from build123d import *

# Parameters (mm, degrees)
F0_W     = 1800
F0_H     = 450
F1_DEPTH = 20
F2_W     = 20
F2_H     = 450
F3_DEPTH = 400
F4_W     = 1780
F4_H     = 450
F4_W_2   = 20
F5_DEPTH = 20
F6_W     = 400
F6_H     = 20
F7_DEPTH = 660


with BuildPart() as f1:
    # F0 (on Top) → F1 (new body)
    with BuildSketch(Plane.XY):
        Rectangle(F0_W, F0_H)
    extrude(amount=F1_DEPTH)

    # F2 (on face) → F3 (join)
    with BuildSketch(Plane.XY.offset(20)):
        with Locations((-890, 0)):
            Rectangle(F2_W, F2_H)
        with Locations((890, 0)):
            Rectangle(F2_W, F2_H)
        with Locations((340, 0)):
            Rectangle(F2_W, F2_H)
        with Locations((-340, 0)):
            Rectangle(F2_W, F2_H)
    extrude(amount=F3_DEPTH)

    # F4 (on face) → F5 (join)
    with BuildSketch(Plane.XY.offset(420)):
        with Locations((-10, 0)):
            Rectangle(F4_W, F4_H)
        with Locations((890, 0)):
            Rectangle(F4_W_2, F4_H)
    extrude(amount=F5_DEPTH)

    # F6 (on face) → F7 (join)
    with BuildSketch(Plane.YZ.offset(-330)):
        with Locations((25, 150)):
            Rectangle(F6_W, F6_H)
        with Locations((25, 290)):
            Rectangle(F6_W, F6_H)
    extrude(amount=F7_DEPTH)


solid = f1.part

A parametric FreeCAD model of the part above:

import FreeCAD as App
import Part
import Sketcher

V = App.Vector
Q = App.Units.Quantity

doc = App.newDocument("Part")
params = doc.addObject("Spreadsheet::Sheet", "Params")
for row, (alias, value) in enumerate([
    ("sketch1_width", "1800 mm"),
    ("sketch1_height", "450 mm"),
    ("pad1_length", "20 mm"),
    ("sketch2_width", "20 mm"),
    ("sketch2_height", "450 mm"),
    ("pad2_length", "400 mm"),
    ("sketch3_width", "1800 mm"),
    ("sketch3_height", "450 mm"),
    ("pad3_length", "20 mm"),
    ("sketch4_width", "400 mm"),
    ("sketch4_height", "20 mm"),
    ("pad4_length", "660 mm"),
], start=1):
    params.set(f"A{row}", alias)
    params.set(f"B{row}", "=" + value)
    params.setAlias(f"B{row}", alias)

body = doc.addObject("PartDesign::Body", "Body")

sketch1 = body.newObject("Sketcher::SketchObject", "Sketch")
sketch1.AttachmentSupport = (doc.getObject("XY_Plane"), [""])
sketch1.MapMode = "FlatFace"
sketch1.addGeometry([
    Part.LineSegment(V(-900, 225, 0), V(-900, -225, 0)),
    Part.LineSegment(V(-900, -225, 0), V(900, -225, 0)),
    Part.LineSegment(V(900, -225, 0), V(900, 225, 0)),
    Part.LineSegment(V(900, 225, 0), V(-900, 225, 0)),
], False)
sketch1.addConstraint([
    Sketcher.Constraint("Coincident", 0, 2, 1, 1),
    Sketcher.Constraint("Coincident", 1, 2, 2, 1),
    Sketcher.Constraint("Coincident", 2, 2, 3, 1),
    Sketcher.Constraint("Coincident", 3, 2, 0, 1),
    Sketcher.Constraint("Vertical", 0),
    Sketcher.Constraint("Horizontal", 1),
    Sketcher.Constraint("Vertical", 2),
    Sketcher.Constraint("Horizontal", 3),
    Sketcher.Constraint("Symmetric", 0, 2, 2, 2, -1, 1),
    Sketcher.Constraint("DistanceX", 1, 1, 1, 2, Q("1800 mm")),
    Sketcher.Constraint("DistanceY", 0, 2, 0, 1, Q("450 mm")),
])
sketch1.setExpression("Constraints[9]", "Params.sketch1_width")
sketch1.setExpression("Constraints[10]", "Params.sketch1_height")
pad1 = body.newObject("PartDesign::Pad", "Pad")
pad1.Profile = sketch1
pad1.setExpression("Length", "Params.pad1_length")

sketch2 = body.newObject("Sketcher::SketchObject", "Sketch001")
sketch2.AttachmentSupport = (doc.getObject("XY_Plane"), [""])
sketch2.MapMode = "FlatFace"
sketch2.AttachmentOffset = App.Placement(V(0, 0, 20), App.Rotation())
sketch2.addGeometry([
    Part.LineSegment(V(-900, 225, 0), V(-900, -225, 0)),
    Part.LineSegment(V(-900, -225, 0), V(-880, -225, 0)),
    Part.LineSegment(V(-880, -225, 0), V(-880, 225, 0)),
    Part.LineSegment(V(-880, 225, 0), V(-900, 225, 0)),
    Part.LineSegment(V(880, 225, 0), V(880, -225, 0)),
    Part.LineSegment(V(880, -225, 0), V(900, -225, 0)),
    Part.LineSegment(V(900, -225, 0), V(900, 225, 0)),
    Part.LineSegment(V(900, 225, 0), V(880, 225, 0)),
    Part.LineSegment(V(330, 225, 0), V(330, -225, 0)),
    Part.LineSegment(V(330, -225, 0), V(350, -225, 0)),
    Part.LineSegment(V(350, -225, 0), V(350, 225, 0)),
    Part.LineSegment(V(350, 225, 0), V(330, 225, 0)),
    Part.LineSegment(V(-350, 225, 0), V(-350, -225, 0)),
    Part.LineSegment(V(-350, -225, 0), V(-330, -225, 0)),
    Part.LineSegment(V(-330, -225, 0), V(-330, 225, 0)),
    Part.LineSegment(V(-330, 225, 0), V(-350, 225, 0)),
], False)
sketch2.addConstraint([
    Sketcher.Constraint("Coincident", 0, 2, 1, 1),
    Sketcher.Constraint("Coincident", 1, 2, 2, 1),
    Sketcher.Constraint("Coincident", 2, 2, 3, 1),
    Sketcher.Constraint("Coincident", 3, 2, 0, 1),
    Sketcher.Constraint("Coincident", 4, 2, 5, 1),
    Sketcher.Constraint("Coincident", 5, 2, 6, 1),
    Sketcher.Constraint("Coincident", 6, 2, 7, 1),
    Sketcher.Constraint("Coincident", 7, 2, 4, 1),
    Sketcher.Constraint("Coincident", 8, 2, 9, 1),
    Sketcher.Constraint("Coincident", 9, 2, 10, 1),
    Sketcher.Constraint("Coincident", 10, 2, 11, 1),
    Sketcher.Constraint("Coincident", 11, 2, 8, 1),
    Sketcher.Constraint("Coincident", 12, 2, 13, 1),
    Sketcher.Constraint("Coincident", 13, 2, 14, 1),
    Sketcher.Constraint("Coincident", 14, 2, 15, 1),
    Sketcher.Constraint("Coincident", 15, 2, 12, 1),
    Sketcher.Constraint("Vertical", 0),
    Sketcher.Constraint("Horizontal", 1),
    Sketcher.Constraint("Vertical", 2),
    Sketcher.Constraint("Horizontal", 3),
    Sketcher.Constraint("Vertical", 4),
    Sketcher.Constraint("Horizontal", 5),
    Sketcher.Constraint("Vertical", 6),
    Sketcher.Constraint("Horizontal", 7),
    Sketcher.Constraint("Vertical", 8),
    Sketcher.Constraint("Horizontal", 9),
    Sketcher.Constraint("Vertical", 10),
    Sketcher.Constraint("Horizontal", 11),
    Sketcher.Constraint("Vertical", 12),
    Sketcher.Constraint("Horizontal", 13),
    Sketcher.Constraint("Vertical", 14),
    Sketcher.Constraint("Horizontal", 15),
    Sketcher.Constraint("Symmetric", 2, 2, 4, 2, -1, 1),
    Sketcher.Constraint("Symmetric", 0, 2, 6, 2, -1, 1),
    Sketcher.Constraint("Symmetric", 10, 2, 12, 2, -1, 1),
    Sketcher.Constraint("Symmetric", 8, 2, 14, 2, -1, 1),
    Sketcher.Constraint("Horizontal", 1, 2, 4, 2),
    Sketcher.Constraint("Horizontal", 5, 2, 8, 2),
    Sketcher.Constraint("Horizontal", 7, 2, 10, 2),
    Sketcher.Constraint("Equal", 7, 9),
    Sketcher.Constraint("DistanceX", 1, 1, 1, 2, Q("20 mm")),
    Sketcher.Constraint("DistanceY", 0, 2, 0, 1, Q("450 mm")),
    Sketcher.Constraint("DistanceX", 0, 2, -1, 1, Q("900 mm")),
    Sketcher.Constraint("DistanceX", -1, 1, 8, 2, Q("330 mm")),
])
sketch2.setExpression("Constraints[40]", "Params.sketch2_width")
sketch2.setExpression("Constraints[41]", "Params.sketch2_height")
pad2 = body.newObject("PartDesign::Pad", "Pad001")
pad2.Profile = sketch2
pad2.setExpression("Length", "Params.pad2_length")

sketch3 = body.newObject("Sketcher::SketchObject", "Sketch002")
sketch3.AttachmentSupport = (doc.getObject("XY_Plane"), [""])
sketch3.MapMode = "FlatFace"
sketch3.AttachmentOffset = App.Placement(V(0, 0, 420), App.Rotation())
sketch3.addGeometry([
    Part.LineSegment(V(-900, 225, 0), V(-900, -225, 0)),
    Part.LineSegment(V(-900, -225, 0), V(900, -225, 0)),
    Part.LineSegment(V(900, -225, 0), V(900, 225, 0)),
    Part.LineSegment(V(900, 225, 0), V(-900, 225, 0)),
], False)
sketch3.addConstraint([
    Sketcher.Constraint("Coincident", 0, 2, 1, 1),
    Sketcher.Constraint("Coincident", 1, 2, 2, 1),
    Sketcher.Constraint("Coincident", 2, 2, 3, 1),
    Sketcher.Constraint("Coincident", 3, 2, 0, 1),
    Sketcher.Constraint("Vertical", 0),
    Sketcher.Constraint("Horizontal", 1),
    Sketcher.Constraint("Vertical", 2),
    Sketcher.Constraint("Horizontal", 3),
    Sketcher.Constraint("Symmetric", 0, 2, 2, 2, -1, 1),
    Sketcher.Constraint("DistanceX", 1, 1, 1, 2, Q("1800 mm")),
    Sketcher.Constraint("DistanceY", 0, 2, 0, 1, Q("450 mm")),
])
sketch3.setExpression("Constraints[9]", "Params.sketch3_width")
sketch3.setExpression("Constraints[10]", "Params.sketch3_height")
pad3 = body.newObject("PartDesign::Pad", "Pad002")
pad3.Profile = sketch3
pad3.setExpression("Length", "Params.pad3_length")

sketch4 = body.newObject("Sketcher::SketchObject", "Sketch003")
sketch4.AttachmentSupport = (doc.getObject("YZ_Plane"), [""])
sketch4.MapMode = "FlatFace"
sketch4.AttachmentOffset = App.Placement(V(0, 0, -330), App.Rotation())
sketch4.addGeometry([
    Part.LineSegment(V(-175, 160, 0), V(-175, 140, 0)),
    Part.LineSegment(V(-175, 140, 0), V(225, 140, 0)),
    Part.LineSegment(V(225, 140, 0), V(225, 160, 0)),
    Part.LineSegment(V(225, 160, 0), V(-175, 160, 0)),
    Part.LineSegment(V(-175, 300, 0), V(-175, 280, 0)),
    Part.LineSegment(V(-175, 280, 0), V(225, 280, 0)),
    Part.LineSegment(V(225, 280, 0), V(225, 300, 0)),
    Part.LineSegment(V(225, 300, 0), V(-175, 300, 0)),
], False)
sketch4.addConstraint([
    Sketcher.Constraint("Coincident", 0, 2, 1, 1),
    Sketcher.Constraint("Coincident", 1, 2, 2, 1),
    Sketcher.Constraint("Coincident", 2, 2, 3, 1),
    Sketcher.Constraint("Coincident", 3, 2, 0, 1),
    Sketcher.Constraint("Coincident", 4, 2, 5, 1),
    Sketcher.Constraint("Coincident", 5, 2, 6, 1),
    Sketcher.Constraint("Coincident", 6, 2, 7, 1),
    Sketcher.Constraint("Coincident", 7, 2, 4, 1),
    Sketcher.Constraint("Vertical", 0),
    Sketcher.Constraint("Horizontal", 1),
    Sketcher.Constraint("Vertical", 2),
    Sketcher.Constraint("Horizontal", 3),
    Sketcher.Constraint("Vertical", 4),
    Sketcher.Constraint("Horizontal", 5),
    Sketcher.Constraint("Vertical", 6),
    Sketcher.Constraint("Horizontal", 7),
    Sketcher.Constraint("Vertical", 3, 2, 4, 2),
    Sketcher.Constraint("Vertical", 2, 2, 5, 2),
    Sketcher.Constraint("Equal", 2, 4),
    Sketcher.Constraint("DistanceX", 1, 1, 1, 2, Q("400 mm")),
    Sketcher.Constraint("DistanceY", 0, 2, 0, 1, Q("20 mm")),
    Sketcher.Constraint("DistanceX", 0, 2, -1, 1, Q("175 mm")),
    Sketcher.Constraint("DistanceY", -1, 1, 0, 2, Q("140 mm")),
    Sketcher.Constraint("DistanceY", -1, 1, 4, 2, Q("280 mm")),
])
sketch4.setExpression("Constraints[19]", "Params.sketch4_width")
sketch4.setExpression("Constraints[20]", "Params.sketch4_height")
pad4 = body.newObject("PartDesign::Pad", "Pad003")
pad4.Profile = sketch4
pad4.setExpression("Length", "Params.pad4_length")

doc.recompute()
